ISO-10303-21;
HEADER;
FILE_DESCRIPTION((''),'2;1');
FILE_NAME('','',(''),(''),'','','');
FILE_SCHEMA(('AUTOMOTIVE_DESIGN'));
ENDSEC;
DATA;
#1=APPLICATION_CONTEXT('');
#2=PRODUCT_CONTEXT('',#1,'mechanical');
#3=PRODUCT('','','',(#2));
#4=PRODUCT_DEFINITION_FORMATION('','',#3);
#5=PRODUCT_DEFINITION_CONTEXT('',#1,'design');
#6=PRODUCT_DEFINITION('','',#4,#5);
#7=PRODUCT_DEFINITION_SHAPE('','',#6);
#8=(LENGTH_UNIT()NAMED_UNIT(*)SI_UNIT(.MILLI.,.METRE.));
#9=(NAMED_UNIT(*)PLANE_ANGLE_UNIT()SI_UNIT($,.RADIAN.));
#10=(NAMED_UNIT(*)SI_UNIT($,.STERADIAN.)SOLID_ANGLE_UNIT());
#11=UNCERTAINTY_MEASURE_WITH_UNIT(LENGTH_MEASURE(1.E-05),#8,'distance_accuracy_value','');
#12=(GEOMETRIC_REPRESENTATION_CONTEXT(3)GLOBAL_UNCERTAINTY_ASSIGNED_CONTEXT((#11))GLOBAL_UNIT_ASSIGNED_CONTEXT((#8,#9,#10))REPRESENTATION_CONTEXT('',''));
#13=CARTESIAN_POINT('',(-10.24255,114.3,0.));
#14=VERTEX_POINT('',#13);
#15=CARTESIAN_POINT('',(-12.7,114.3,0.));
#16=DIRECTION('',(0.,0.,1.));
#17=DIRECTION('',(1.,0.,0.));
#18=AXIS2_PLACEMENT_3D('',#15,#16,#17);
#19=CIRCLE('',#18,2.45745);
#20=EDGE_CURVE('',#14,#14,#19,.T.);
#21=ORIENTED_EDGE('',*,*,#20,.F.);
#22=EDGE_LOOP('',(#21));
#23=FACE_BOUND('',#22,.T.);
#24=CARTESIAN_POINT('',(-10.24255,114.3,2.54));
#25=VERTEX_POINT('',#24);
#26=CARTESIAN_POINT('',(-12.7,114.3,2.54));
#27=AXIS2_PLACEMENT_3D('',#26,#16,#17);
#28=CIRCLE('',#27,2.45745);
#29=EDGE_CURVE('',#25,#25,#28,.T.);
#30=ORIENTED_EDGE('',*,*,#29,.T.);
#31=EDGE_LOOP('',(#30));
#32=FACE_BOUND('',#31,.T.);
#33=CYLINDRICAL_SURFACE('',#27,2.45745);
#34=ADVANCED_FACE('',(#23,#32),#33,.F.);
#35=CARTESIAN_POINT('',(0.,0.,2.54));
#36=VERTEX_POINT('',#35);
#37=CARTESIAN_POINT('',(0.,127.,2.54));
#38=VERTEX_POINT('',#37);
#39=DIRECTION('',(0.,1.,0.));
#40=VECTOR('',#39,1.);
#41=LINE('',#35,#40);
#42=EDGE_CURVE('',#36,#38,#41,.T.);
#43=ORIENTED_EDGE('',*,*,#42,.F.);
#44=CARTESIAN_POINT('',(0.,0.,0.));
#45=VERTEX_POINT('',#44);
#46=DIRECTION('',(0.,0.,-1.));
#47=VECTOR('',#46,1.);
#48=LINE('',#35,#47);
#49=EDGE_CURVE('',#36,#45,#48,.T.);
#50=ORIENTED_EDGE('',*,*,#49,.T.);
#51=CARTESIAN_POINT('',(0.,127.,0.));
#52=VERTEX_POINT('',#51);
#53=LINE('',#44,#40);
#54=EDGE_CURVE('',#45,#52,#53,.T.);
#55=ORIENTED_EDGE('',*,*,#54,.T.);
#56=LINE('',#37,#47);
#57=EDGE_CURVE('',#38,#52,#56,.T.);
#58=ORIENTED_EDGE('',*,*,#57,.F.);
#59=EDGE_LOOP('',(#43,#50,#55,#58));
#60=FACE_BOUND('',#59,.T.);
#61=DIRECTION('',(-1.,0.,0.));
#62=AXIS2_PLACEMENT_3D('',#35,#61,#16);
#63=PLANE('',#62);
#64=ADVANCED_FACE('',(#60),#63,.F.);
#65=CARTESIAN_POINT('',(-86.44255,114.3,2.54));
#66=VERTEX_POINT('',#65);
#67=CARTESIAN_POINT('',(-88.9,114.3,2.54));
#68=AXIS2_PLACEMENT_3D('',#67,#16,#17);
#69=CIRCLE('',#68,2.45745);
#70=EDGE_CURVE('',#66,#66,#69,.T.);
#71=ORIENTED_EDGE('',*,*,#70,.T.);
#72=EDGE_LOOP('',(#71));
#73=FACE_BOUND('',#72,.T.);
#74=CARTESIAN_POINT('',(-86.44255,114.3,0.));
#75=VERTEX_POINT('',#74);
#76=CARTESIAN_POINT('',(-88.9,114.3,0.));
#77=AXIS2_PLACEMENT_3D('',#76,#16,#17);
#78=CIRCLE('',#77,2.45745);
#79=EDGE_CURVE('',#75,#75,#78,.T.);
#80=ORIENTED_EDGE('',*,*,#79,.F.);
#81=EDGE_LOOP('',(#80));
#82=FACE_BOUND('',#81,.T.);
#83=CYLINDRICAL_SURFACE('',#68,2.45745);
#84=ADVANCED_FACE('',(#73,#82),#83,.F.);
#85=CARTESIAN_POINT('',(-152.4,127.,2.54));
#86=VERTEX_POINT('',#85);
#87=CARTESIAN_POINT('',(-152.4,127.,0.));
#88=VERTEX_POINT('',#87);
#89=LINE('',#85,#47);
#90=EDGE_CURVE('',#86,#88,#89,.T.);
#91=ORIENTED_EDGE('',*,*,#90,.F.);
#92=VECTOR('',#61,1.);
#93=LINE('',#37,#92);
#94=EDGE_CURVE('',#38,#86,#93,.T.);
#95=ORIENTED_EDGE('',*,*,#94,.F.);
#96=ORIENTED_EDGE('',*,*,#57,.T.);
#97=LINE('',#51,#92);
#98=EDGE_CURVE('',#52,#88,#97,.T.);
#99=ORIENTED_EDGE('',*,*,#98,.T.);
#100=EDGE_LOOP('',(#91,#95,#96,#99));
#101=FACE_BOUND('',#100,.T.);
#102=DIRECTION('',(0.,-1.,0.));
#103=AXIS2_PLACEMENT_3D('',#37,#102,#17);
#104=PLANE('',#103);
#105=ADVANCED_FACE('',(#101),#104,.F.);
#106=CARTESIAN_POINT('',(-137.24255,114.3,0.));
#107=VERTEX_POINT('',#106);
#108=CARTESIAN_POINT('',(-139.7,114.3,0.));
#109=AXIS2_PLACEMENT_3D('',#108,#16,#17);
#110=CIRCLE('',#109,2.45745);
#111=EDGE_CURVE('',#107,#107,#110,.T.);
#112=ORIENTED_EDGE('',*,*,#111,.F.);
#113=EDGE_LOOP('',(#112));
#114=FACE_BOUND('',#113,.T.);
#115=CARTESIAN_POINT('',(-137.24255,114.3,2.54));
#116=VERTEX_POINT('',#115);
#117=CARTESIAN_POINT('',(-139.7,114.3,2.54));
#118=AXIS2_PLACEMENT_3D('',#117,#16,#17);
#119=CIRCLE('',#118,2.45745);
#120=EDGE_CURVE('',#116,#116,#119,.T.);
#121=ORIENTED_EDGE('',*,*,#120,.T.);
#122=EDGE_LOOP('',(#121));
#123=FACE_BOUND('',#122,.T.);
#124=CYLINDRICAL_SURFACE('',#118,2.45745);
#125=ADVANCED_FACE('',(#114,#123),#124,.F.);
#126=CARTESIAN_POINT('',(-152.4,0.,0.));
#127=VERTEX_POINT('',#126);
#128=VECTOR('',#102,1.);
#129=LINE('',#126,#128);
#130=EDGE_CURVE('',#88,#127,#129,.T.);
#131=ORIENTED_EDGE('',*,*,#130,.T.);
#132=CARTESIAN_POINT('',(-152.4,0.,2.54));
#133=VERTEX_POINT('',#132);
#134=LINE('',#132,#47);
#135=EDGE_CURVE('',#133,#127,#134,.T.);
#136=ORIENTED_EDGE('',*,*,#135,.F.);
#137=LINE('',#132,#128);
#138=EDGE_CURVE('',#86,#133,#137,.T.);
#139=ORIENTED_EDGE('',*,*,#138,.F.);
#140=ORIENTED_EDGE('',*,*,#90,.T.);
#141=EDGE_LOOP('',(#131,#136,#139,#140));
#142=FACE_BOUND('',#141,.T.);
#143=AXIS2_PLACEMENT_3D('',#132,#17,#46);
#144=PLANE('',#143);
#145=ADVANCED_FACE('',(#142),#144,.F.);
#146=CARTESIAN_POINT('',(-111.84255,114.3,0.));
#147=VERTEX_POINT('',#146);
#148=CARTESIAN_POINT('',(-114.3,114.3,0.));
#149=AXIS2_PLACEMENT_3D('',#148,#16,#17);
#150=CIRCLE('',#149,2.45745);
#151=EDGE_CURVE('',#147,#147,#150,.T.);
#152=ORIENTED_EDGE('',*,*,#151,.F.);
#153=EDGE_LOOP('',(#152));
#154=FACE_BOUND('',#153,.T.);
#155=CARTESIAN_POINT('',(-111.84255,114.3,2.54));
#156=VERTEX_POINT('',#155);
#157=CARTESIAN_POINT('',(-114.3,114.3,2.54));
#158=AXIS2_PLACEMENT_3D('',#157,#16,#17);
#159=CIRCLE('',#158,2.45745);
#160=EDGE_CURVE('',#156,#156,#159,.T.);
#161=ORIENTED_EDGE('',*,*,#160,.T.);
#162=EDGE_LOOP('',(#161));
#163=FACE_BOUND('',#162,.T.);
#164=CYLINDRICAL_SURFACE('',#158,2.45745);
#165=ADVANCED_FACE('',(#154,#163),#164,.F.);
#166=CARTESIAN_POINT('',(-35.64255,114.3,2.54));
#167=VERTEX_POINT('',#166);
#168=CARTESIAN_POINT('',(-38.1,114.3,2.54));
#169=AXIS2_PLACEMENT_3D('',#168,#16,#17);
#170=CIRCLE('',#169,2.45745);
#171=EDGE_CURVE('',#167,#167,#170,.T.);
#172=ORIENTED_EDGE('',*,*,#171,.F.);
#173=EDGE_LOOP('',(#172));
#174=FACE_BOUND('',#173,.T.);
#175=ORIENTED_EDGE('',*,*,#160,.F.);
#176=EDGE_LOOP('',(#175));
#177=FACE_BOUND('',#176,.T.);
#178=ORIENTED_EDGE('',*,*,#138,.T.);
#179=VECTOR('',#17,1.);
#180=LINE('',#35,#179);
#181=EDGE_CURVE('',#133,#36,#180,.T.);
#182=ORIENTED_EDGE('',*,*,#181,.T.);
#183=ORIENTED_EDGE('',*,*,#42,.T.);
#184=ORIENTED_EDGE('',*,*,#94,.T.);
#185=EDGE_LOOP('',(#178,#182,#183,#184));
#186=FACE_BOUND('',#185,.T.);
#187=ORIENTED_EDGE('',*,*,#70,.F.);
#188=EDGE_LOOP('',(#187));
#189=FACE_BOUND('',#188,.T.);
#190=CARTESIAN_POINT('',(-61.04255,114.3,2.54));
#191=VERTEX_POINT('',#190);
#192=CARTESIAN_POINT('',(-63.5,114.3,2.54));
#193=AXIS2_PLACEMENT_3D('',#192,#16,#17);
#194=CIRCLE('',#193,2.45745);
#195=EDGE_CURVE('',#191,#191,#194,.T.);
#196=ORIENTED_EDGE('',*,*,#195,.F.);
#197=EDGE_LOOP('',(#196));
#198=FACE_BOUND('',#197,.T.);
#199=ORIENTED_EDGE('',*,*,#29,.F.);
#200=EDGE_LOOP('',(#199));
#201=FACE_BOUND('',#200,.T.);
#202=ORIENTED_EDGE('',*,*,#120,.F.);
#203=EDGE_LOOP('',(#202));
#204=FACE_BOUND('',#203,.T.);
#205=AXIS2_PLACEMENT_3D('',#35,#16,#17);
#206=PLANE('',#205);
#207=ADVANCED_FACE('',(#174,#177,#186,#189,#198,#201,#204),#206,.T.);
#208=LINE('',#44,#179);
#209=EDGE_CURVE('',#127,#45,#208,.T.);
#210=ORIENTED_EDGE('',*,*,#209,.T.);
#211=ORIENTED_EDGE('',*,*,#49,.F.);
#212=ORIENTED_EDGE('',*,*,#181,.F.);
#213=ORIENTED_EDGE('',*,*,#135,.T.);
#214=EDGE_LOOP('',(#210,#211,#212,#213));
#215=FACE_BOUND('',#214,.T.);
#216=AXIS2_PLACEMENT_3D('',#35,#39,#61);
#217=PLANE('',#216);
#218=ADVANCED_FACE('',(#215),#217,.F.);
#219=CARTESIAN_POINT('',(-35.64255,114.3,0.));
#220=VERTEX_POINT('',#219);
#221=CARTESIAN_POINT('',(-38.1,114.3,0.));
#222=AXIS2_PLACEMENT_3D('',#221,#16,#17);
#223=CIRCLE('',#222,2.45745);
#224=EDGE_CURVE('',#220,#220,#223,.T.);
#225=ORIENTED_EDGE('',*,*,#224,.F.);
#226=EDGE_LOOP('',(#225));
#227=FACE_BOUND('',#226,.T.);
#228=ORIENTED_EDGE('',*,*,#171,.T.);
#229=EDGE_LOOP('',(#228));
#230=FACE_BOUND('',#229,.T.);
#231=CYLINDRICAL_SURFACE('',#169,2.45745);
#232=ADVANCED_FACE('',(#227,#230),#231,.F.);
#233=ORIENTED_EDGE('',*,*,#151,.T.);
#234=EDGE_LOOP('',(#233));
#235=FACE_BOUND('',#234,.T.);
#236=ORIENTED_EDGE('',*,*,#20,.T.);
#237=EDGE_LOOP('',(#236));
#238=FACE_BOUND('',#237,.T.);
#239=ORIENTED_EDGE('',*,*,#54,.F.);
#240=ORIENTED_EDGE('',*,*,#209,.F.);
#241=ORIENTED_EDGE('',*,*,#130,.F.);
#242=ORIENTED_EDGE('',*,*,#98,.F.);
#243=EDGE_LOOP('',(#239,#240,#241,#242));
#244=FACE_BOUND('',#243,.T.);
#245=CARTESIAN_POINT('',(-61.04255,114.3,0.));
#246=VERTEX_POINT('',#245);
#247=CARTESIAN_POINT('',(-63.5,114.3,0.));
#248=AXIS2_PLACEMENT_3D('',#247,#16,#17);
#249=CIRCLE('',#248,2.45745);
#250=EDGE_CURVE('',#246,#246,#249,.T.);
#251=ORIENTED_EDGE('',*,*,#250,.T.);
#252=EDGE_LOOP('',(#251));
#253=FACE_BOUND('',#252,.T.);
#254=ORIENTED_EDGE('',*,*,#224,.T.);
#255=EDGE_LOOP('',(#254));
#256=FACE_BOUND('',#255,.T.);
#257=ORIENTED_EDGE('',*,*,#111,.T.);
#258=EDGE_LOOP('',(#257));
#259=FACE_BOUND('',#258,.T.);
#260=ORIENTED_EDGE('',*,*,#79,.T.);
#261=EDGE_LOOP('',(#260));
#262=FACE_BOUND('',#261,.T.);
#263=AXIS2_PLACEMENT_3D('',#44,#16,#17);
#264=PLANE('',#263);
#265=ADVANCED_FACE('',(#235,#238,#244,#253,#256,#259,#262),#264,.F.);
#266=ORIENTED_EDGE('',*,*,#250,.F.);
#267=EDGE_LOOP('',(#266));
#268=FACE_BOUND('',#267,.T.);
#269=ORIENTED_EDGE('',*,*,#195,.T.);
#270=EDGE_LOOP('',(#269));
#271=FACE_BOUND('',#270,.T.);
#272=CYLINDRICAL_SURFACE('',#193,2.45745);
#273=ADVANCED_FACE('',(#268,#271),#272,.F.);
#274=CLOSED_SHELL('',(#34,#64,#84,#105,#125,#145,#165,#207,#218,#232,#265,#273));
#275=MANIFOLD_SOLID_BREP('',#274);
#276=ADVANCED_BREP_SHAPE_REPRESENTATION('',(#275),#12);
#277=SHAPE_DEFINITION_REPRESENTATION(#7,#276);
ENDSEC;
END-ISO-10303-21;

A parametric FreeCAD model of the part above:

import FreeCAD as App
import Part
import Sketcher

V = App.Vector
Q = App.Units.Quantity

doc = App.newDocument("Part")
body = doc.addObject("PartDesign::Body", "Body")

# Sketch on XY plane
sketch1 = body.newObject("Sketcher::SketchObject", "Sketch")
sketch1.AttachmentSupport = (doc.getObject("XY_Plane"), [""])
sketch1.MapMode = "FlatFace"
sketch1.addGeometry([
    Part.LineSegment(V(-152, 127, 0), V(-152, 0, 0)),
    Part.LineSegment(V(-152, 0, 0), V(0, 0, 0)),
    Part.LineSegment(V(0, 0, 0), V(0, 127, 0)),
    Part.LineSegment(V(0, 127, 0), V(-152, 127, 0)),
], False)
sketch1.addConstraint([
    Sketcher.Constraint("Coincident", 0, 2, 1, 1),
    Sketcher.Constraint("Coincident", 1, 2, 2, 1),
    Sketcher.Constraint("Coincident", 2, 2, 3, 1),
    Sketcher.Constraint("Coincident", 3, 2, 0, 1),
    Sketcher.Constraint("Vertical", 0),
    Sketcher.Constraint("Horizontal", 1),
    Sketcher.Constraint("Vertical", 2),
    Sketcher.Constraint("Horizontal", 3),
    Sketcher.Constraint("Coincident", 1, 2, -1, 1),
    Sketcher.Constraint("DistanceX", 1, 1, 1, 2, Q("6 in")),
    Sketcher.Constraint("DistanceY", 0, 2, 0, 1, Q("5 in")),
])
pad1 = body.newObject("PartDesign::Pad", "Pad")
pad1.Profile = sketch1
pad1.Length = Q("0.1 in")

# Sketch on XY plane
sketch2 = body.newObject("Sketcher::SketchObject", "Sketch001")
sketch2.AttachmentSupport = (doc.getObject("XY_Plane"), [""])
sketch2.MapMode = "FlatFace"
sketch2.AttachmentOffset = App.Placement(V(0, 0, 0.1 * 25.4), App.Rotation())
sketch2.addGeometry([
    Part.Circle(V(-139.7, 114.3, 0), V(0, 0, 1), 2.5),  # 0
    Part.Circle(V(-114.3, 114.3, 0), V(0, 0, 1), 2.5),  # 1
    Part.Circle(V(-88.9, 114.3, 0), V(0, 0, 1), 2.5),  # 2
    Part.Circle(V(-63.5, 114.3, 0), V(0, 0, 1), 2.5),  # 3
    Part.Circle(V(-38.1, 114.3, 0), V(0, 0, 1), 2.5),  # 4
    Part.Circle(V(-12.7, 114.3, 0), V(0, 0, 1), 2.5),  # 5
], False)
sketch2.addConstraint([
    Sketcher.Constraint("Equal", 0, 1),
    Sketcher.Constraint("Equal", 1, 2),
    Sketcher.Constraint("Equal", 2, 3),
    Sketcher.Constraint("Equal", 3, 4),
    Sketcher.Constraint("Equal", 4, 5),
    Sketcher.Constraint("Horizontal", 0, 3, 1, 3),
    Sketcher.Constraint("Horizontal", 1, 3, 2, 3),
    Sketcher.Constraint("Horizontal", 2, 3, 3, 3),
    Sketcher.Constraint("Horizontal", 3, 3, 4, 3),
    Sketcher.Constraint("Horizontal", 4, 3, 5, 3),
    Sketcher.Constraint("DistanceX", 0, 3, 1, 3, Q("1 in")),
    Sketcher.Constraint("DistanceX", 1, 3, 2, 3, Q("1 in")),
    Sketcher.Constraint("DistanceX", 2, 3, 3, 3, Q("1 in")),
    Sketcher.Constraint("DistanceX", 3, 3, 4, 3, Q("1 in")),
    Sketcher.Constraint("DistanceX", 4, 3, 5, 3, Q("1 in")),
    Sketcher.Constraint("Diameter", 0, Q("0.1935 in")),
    Sketcher.Constraint("DistanceX", 0, 3, -1, 1, Q("5.5 in")),
    Sketcher.Constraint("DistanceY", -1, 1, 0, 3, Q("4.5 in")),
])
doc.recompute()
hole = body.newObject("PartDesign::Hole", "Hole")
hole.Profile = sketch2
hole.ThreadType = "None"
hole.Diameter = Q("0.1935 in")
hole.DepthType = "ThroughAll"

doc.recompute()
